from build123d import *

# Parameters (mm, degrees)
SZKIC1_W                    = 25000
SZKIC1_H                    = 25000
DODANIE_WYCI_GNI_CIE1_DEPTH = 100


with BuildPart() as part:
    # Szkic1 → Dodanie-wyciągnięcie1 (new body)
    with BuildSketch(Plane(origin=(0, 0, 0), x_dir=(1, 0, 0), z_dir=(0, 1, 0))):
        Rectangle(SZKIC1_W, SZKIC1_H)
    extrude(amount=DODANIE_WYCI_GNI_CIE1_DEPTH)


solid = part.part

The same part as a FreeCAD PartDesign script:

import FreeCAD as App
import Part
import Sketcher

V = App.Vector

doc = App.newDocument("Part")
body = doc.addObject("PartDesign::Body", "Body")

# Sketch on XZ plane
sketch1 = body.newObject("Sketcher::SketchObject", "Sketch")
sketch1.AttachmentSupport = (doc.getObject("XZ_Plane"), [""])
sketch1.MapMode = "FlatFace"
sketch1.addGeometry([
    Part.LineSegment(V(-12500, -12500, 0), V(-12500, 12500, 0)),
    Part.LineSegment(V(-12500, 12500, 0), V(12500, 12500, 0)),
    Part.LineSegment(V(12500, 12500, 0), V(12500, -12500, 0)),
    Part.LineSegment(V(12500, -12500, 0), V(-12500, -12500, 0)),
], False)
sketch1.addConstraint([
    Sketcher.Constraint("Coincident", 0, 2, 1, 1),
    Sketcher.Constraint("Coincident", 1, 2, 2, 1),
    Sketcher.Constraint("Coincident", 2, 2, 3, 1),
    Sketcher.Constraint("Coincident", 3, 2, 0, 1),
    Sketcher.Constraint("Vertical", 0),
    Sketcher.Constraint("Horizontal", 1),
    Sketcher.Constraint("Vertical", 2),
    Sketcher.Constraint("Horizontal", 3),
    Sketcher.Constraint("Symmetric", 0, 2, 2, 2, -1, 1),
    Sketcher.Constraint("Equal", 3, 0),
    Sketcher.Constraint("DistanceX", 1, 1, 1, 2, 25000.0),
])
pad1 = body.newObject("PartDesign::Pad", "Pad")
pad1.Profile = sketch1
pad1.Length = 100
pad1.Reversed = True

doc.recompute()
